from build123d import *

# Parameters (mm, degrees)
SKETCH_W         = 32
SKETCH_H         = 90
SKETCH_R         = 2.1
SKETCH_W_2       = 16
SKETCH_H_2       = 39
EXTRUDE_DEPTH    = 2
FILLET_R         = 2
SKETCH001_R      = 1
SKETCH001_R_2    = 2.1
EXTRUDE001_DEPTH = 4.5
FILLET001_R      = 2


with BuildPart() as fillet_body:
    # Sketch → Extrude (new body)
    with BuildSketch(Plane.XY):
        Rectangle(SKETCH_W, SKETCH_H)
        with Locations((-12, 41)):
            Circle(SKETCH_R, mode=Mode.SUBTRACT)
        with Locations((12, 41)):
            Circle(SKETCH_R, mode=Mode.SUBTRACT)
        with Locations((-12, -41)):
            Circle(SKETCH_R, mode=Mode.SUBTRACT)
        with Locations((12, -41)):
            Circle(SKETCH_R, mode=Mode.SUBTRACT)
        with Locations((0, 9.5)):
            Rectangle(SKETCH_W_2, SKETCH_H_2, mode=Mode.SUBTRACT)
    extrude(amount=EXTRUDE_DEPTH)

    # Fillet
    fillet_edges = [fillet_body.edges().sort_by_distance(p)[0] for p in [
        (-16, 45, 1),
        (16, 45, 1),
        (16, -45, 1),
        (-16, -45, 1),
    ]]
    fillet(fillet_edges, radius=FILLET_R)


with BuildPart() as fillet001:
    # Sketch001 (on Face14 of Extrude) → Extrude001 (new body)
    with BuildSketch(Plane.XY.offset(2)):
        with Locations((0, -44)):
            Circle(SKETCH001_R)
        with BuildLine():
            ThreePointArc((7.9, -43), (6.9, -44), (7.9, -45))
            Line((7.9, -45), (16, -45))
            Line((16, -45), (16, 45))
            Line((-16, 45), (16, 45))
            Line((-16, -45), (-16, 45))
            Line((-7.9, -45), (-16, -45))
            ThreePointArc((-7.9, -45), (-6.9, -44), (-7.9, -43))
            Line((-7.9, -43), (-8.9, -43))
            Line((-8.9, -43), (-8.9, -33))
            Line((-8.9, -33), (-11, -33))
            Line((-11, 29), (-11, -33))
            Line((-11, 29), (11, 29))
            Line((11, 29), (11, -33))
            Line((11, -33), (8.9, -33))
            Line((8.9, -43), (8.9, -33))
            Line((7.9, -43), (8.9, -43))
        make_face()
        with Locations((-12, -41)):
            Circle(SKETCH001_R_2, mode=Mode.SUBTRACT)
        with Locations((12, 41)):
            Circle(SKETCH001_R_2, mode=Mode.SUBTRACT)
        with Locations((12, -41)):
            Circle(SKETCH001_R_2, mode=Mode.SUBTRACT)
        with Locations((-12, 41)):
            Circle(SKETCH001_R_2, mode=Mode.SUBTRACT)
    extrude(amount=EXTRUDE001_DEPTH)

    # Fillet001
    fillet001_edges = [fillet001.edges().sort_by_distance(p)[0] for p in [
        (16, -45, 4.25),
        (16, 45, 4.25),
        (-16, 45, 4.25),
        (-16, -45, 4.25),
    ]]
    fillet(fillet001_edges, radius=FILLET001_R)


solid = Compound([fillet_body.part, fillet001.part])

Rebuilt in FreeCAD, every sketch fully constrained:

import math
import FreeCAD as App
import Part
import Sketcher


def edges_at(feature, points):
    """Names of the edges that pass closest to the given points."""
    edges = feature.Shape.Edges
    near = lambda p: min(range(len(edges)), key=lambda i: edges[i].distToShape(Part.Vertex(*p))[0])
    return sorted({f"Edge{near(p) + 1}" for p in points})

doc = App.newDocument("Part")
params = doc.addObject("Spreadsheet::Sheet", "Params")
for row, (alias, value) in enumerate([
    ("sketch1_diameter", "4.2 mm"),
    ("sketch1_width", "32 mm"),
    ("sketch1_width2", "16 mm"),
    ("sketch1_height", "90 mm"),
    ("sketch1_height2", "39 mm"),
    ("pad1_length", "2 mm"),
    ("fillet_radius", "2 mm"),
    ("sketch2_diameter", "2 mm"),
    ("sketch2_diameter2", "4.2 mm"),
    ("sketch2_width", "32 mm"),
    ("sketch2_width2", "1 mm"),
    ("sketch2_width3", "22 mm"),
    ("pad2_length", "4.5 mm"),
    ("fillet2_radius", "2 mm"),
], start=1):
    params.set(f"A{row}", alias)
    params.set(f"B{row}", "=" + value)
    params.setAlias(f"B{row}", alias)

body = doc.addObject("PartDesign::Body", "Body")

sketch1 = body.newObject("Sketcher::SketchObject", "Sketch")
sketch1.AttachmentSupport = (doc.getObject("XY_Plane"), [""])
sketch1.MapMode = "FlatFace"
sketch1.addGeometry([
    Part.LineSegment(App.Vector(-16, 45, 0), App.Vector(-16, -45, 0)),
    Part.LineSegment(App.Vector(-16, -45, 0), App.Vector(16, -45, 0)),
    Part.LineSegment(App.Vector(16, -45, 0), App.Vector(16, 45, 0)),
    Part.LineSegment(App.Vector(16, 45, 0), App.Vector(-16, 45, 0)),
    Part.Circle(App.Vector(-12, -41, 0), App.Vector(0, 0, 1), 2.1),
    Part.Circle(App.Vector(12, -41, 0), App.Vector(0, 0, 1), 2.1),
    Part.Circle(App.Vector(-12, 41, 0), App.Vector(0, 0, 1), 2.1),
    Part.LineSegment(App.Vector(8, -10, 0), App.Vector(-8, -10, 0)),
    Part.LineSegment(App.Vector(-8, -10, 0), App.Vector(-8, 29, 0)),
    Part.LineSegment(App.Vector(-8, 29, 0), App.Vector(8, 29, 0)),
    Part.LineSegment(App.Vector(8, 29, 0), App.Vector(8, -10, 0)),
    Part.Circle(App.Vector(12, 41, 0), App.Vector(0, 0, 1), 2.1),
], False)
sketch1.addConstraint([
    Sketcher.Constraint("Coincident", 0, 2, 1, 1),
    Sketcher.Constraint("Coincident", 1, 2, 2, 1),
    Sketcher.Constraint("Coincident", 2, 2, 3, 1),
    Sketcher.Constraint("Coincident", 3, 2, 0, 1),
    Sketcher.Constraint("Coincident", 7, 2, 8, 1),
    Sketcher.Constraint("Coincident", 8, 2, 9, 1),
    Sketcher.Constraint("Coincident", 9, 2, 10, 1),
    Sketcher.Constraint("Coincident", 10, 2, 7, 1),
    Sketcher.Constraint("Vertical", 0),
    Sketcher.Constraint("Horizontal", 1),
    Sketcher.Constraint("Vertical", 2),
    Sketcher.Constraint("Horizontal", 3),
    Sketcher.Constraint("Horizontal", 7),
    Sketcher.Constraint("Vertical", 8),
    Sketcher.Constraint("Horizontal", 9),
    Sketcher.Constraint("Vertical", 10),
    Sketcher.Constraint("Equal", 4, 5),
    Sketcher.Constraint("Equal", 5, 6),
    Sketcher.Constraint("Equal", 6, 11),
    Sketcher.Constraint("Symmetric", 5, 3, 6, 3, -1, 1),
    Sketcher.Constraint("Symmetric", 4, 3, 11, 3, -1, 1),
    Sketcher.Constraint("Symmetric", 0, 2, 2, 2, -1, 1),
    Sketcher.Constraint("Symmetric", 4, 3, 5, 3, -2),
    Sketcher.Constraint("Diameter", 4, 4.2),
    Sketcher.Constraint("DistanceX", 1, 1, 1, 2, 32.0),
    Sketcher.Constraint("DistanceX", 7, 2, 7, 1, 16.0),
    Sketcher.Constraint("DistanceY", 0, 2, 0, 1, 90.0),
    Sketcher.Constraint("DistanceY", 8, 1, 8, 2, 39.0),
    Sketcher.Constraint("DistanceX", 4, 3, -1, 1, 12.0),
    Sketcher.Constraint("DistanceY", 4, 3, -1, 1, 41.0),
    Sketcher.Constraint("DistanceX", 7, 2, -1, 1, 8.0),
    Sketcher.Constraint("DistanceY", 7, 2, -1, 1, 10.0),
])
sketch1.setExpression("Constraints[23]", "Params.sketch1_diameter")
sketch1.setExpression("Constraints[24]", "Params.sketch1_width")
sketch1.setExpression("Constraints[25]", "Params.sketch1_width2")
sketch1.setExpression("Constraints[26]", "Params.sketch1_height")
sketch1.setExpression("Constraints[27]", "Params.sketch1_height2")
pad1 = body.newObject("PartDesign::Pad", "Pad")
pad1.Profile = sketch1
pad1.setExpression("Length", "Params.pad1_length")
doc.recompute()

fillet = body.newObject("PartDesign::Fillet", "Fillet")
fillet.Base = (pad1, edges_at(pad1, [
    (-16, 45, 1),
    (16, 45, 1),
    (16, -45, 1),
    (-16, -45, 1),
]))
fillet.setExpression("Radius", "Params.fillet_radius")
body2 = doc.addObject("PartDesign::Body", "Body001")
body2.AllowCompound = True

sketch2 = body2.newObject("Sketcher::SketchObject", "Sketch001")
sketch2.AttachmentSupport = (doc.getObject("XY_Plane001"), [""])
sketch2.MapMode = "FlatFace"
sketch2.AttachmentOffset = App.Placement(App.Vector(0, 0, 2), App.Rotation())
sketch2.addGeometry([
    Part.Circle(App.Vector(0, -44, 0), App.Vector(0, 0, 1), 1),
    Part.ArcOfCircle(Part.Circle(App.Vector(7.9, -44, 0), App.Vector(0, 0, 1), 1), math.radians(90), math.radians(270)),
    Part.LineSegment(App.Vector(7.9, -45, 0), App.Vector(16, -45, 0)),
    Part.LineSegment(App.Vector(16, -45, 0), App.Vector(16, 45, 0)),
    Part.LineSegment(App.Vector(16, 45, 0), App.Vector(-16, 45, 0)),
    Part.LineSegment(App.Vector(-16, 45, 0), App.Vector(-16, -45, 0)),
    Part.LineSegment(App.Vector(-16, -45, 0), App.Vector(-7.9, -45, 0)),
    Part.ArcOfCircle(Part.Circle(App.Vector(-7.9, -44, 0), App.Vector(0, 0, 1), 1), math.radians(-90), math.radians(90)),
    Part.LineSegment(App.Vector(-7.9, -43, 0), App.Vector(-8.9, -43, 0)),
    Part.LineSegment(App.Vector(-8.9, -43, 0), App.Vector(-8.9, -33, 0)),
    Part.LineSegment(App.Vector(-8.9, -33, 0), App.Vector(-11, -33, 0)),
    Part.LineSegment(App.Vector(-11, -33, 0), App.Vector(-11, 29, 0)),
    Part.LineSegment(App.Vector(-11, 29, 0), App.Vector(11, 29, 0)),
    Part.LineSegment(App.Vector(11, 29, 0), App.Vector(11, -33, 0)),
    Part.LineSegment(App.Vector(11, -33, 0), App.Vector(8.9, -33, 0)),
    Part.LineSegment(App.Vector(8.9, -33, 0), App.Vector(8.9, -43, 0)),
    Part.LineSegment(App.Vector(8.9, -43, 0), App.Vector(7.9, -43, 0)),
    Part.Circle(App.Vector(-12, -41, 0), App.Vector(0, 0, 1), 2.1),
    Part.Circle(App.Vector(12, -41, 0), App.Vector(0, 0, 1), 2.1),
    Part.Circle(App.Vector(-12, 41, 0), App.Vector(0, 0, 1), 2.1),
    Part.Circle(App.Vector(12, 41, 0), App.Vector(0, 0, 1), 2.1),
], False)
sketch2.addConstraint([
    Sketcher.Constraint("Tangent", 1, 2, 2, 1),
    Sketcher.Constraint("Coincident", 2, 2, 3, 1),
    Sketcher.Constraint("Coincident", 3, 2, 4, 1),
    Sketcher.Constraint("Coincident", 4, 2, 5, 1),
    Sketcher.Constraint("Coincident", 5, 2, 6, 1),
    Sketcher.Constraint("Tangent", 6, 2, 7, 1),
    Sketcher.Constraint("Tangent", 7, 2, 8, 1),
    Sketcher.Constraint("Coincident", 8, 2, 9, 1),
    Sketcher.Constraint("Coincident", 9, 2, 10, 1),
    Sketcher.Constraint("Coincident", 10, 2, 11, 1),
    Sketcher.Constraint("Coincident", 11, 2, 12, 1),
    Sketcher.Constraint("Coincident", 12, 2, 13, 1),
    Sketcher.Constraint("Coincident", 13, 2, 14, 1),
    Sketcher.Constraint("Coincident", 14, 2, 15, 1),
    Sketcher.Constraint("Coincident", 15, 2, 16, 1),
    Sketcher.Constraint("Tangent", 16, 2, 1, 1),
    Sketcher.Constraint("Horizontal", 2),
    Sketcher.Constraint("Vertical", 3),
    Sketcher.Constraint("Horizontal", 4),
    Sketcher.Constraint("Vertical", 5),
    Sketcher.Constraint("Horizontal", 6),
    Sketcher.Constraint("Horizontal", 8),
    Sketcher.Constraint("Vertical", 9),
    Sketcher.Constraint("Horizontal", 10),
    Sketcher.Constraint("Vertical", 11),
    Sketcher.Constraint("Horizontal", 12),
    Sketcher.Constraint("Vertical", 13),
    Sketcher.Constraint("Horizontal", 14),
    Sketcher.Constraint("Vertical", 15),
    Sketcher.Constraint("Horizontal", 16),
    Sketcher.Constraint("Equal", 0, 1),
    Sketcher.Constraint("Equal", 1, 7),
    Sketcher.Constraint("Equal", 17, 18),
    Sketcher.Constraint("Equal", 18, 19),
    Sketcher.Constraint("Equal", 19, 20),
    Sketcher.Constraint("Symmetric", 18, 3, 19, 3, -1, 1),
    Sketcher.Constraint("Symmetric", 17, 3, 20, 3, -1, 1),
    Sketcher.Constraint("Symmetric", 2, 2, 4, 2, -1, 1),
    Sketcher.Constraint("Symmetric", 1, 3, 7, 3, -2),
    Sketcher.Constraint("Symmetric", 17, 3, 18, 3, -2),
    Sketcher.Constraint("Symmetric", 10, 2, 13, 2, -2),
    Sketcher.Constraint("PointOnObject", 0, 3, -2),
    Sketcher.Constraint("Horizontal", 0, 3, 1, 3),
    Sketcher.Constraint("Equal", 10, 14),
    Sketcher.Constraint("Diameter", 0, 2.0),
    Sketcher.Constraint("Diameter", 17, 4.2),
    Sketcher.Constraint("DistanceX", 4, 2, 4, 1, 32.0),
    Sketcher.Constraint("DistanceX", 8, 2, 8, 1, 1.0),
    Sketcher.Constraint("DistanceX", 12, 1, 12, 2, 22.0),
    Sketcher.Constraint("DistanceY", 3, 1, 3, 2, 90.0),
    Sketcher.Constraint("DistanceY", 9, 1, 9, 2, 10.0),
    Sketcher.Constraint("DistanceY", 11, 1, 11, 2, 62.0),
    Sketcher.Constraint("DistanceX", 2, 1, 2, 2, 8.1),
    Sketcher.Constraint("DistanceX", 17, 3, -1, 1, 12.0),
    Sketcher.Constraint("DistanceY", 17, 3, -1, 1, 41.0),
])
sketch2.setExpression("Constraints[44]", "Params.sketch2_diameter")
sketch2.setExpression("Constraints[45]", "Params.sketch2_diameter2")
sketch2.setExpression("Constraints[46]", "Params.sketch2_width")
sketch2.setExpression("Constraints[47]", "Params.sketch2_width2")
sketch2.setExpression("Constraints[48]", "Params.sketch2_width3")
pad2 = body2.newObject("PartDesign::Pad", "Pad001")
pad2.Profile = sketch2
pad2.setExpression("Length", "Params.pad2_length")
doc.recompute()

fillet2 = body2.newObject("PartDesign::Fillet", "Fillet001")
fillet2.Base = (pad2, edges_at(pad2, [
    (16, -45, 4.25),
    (16, 45, 4.25),
    (-16, 45, 4.25),
    (-16, -45, 4.25),
]))
fillet2.setExpression("Radius", "Params.fillet2_radius")

doc.recompute()
